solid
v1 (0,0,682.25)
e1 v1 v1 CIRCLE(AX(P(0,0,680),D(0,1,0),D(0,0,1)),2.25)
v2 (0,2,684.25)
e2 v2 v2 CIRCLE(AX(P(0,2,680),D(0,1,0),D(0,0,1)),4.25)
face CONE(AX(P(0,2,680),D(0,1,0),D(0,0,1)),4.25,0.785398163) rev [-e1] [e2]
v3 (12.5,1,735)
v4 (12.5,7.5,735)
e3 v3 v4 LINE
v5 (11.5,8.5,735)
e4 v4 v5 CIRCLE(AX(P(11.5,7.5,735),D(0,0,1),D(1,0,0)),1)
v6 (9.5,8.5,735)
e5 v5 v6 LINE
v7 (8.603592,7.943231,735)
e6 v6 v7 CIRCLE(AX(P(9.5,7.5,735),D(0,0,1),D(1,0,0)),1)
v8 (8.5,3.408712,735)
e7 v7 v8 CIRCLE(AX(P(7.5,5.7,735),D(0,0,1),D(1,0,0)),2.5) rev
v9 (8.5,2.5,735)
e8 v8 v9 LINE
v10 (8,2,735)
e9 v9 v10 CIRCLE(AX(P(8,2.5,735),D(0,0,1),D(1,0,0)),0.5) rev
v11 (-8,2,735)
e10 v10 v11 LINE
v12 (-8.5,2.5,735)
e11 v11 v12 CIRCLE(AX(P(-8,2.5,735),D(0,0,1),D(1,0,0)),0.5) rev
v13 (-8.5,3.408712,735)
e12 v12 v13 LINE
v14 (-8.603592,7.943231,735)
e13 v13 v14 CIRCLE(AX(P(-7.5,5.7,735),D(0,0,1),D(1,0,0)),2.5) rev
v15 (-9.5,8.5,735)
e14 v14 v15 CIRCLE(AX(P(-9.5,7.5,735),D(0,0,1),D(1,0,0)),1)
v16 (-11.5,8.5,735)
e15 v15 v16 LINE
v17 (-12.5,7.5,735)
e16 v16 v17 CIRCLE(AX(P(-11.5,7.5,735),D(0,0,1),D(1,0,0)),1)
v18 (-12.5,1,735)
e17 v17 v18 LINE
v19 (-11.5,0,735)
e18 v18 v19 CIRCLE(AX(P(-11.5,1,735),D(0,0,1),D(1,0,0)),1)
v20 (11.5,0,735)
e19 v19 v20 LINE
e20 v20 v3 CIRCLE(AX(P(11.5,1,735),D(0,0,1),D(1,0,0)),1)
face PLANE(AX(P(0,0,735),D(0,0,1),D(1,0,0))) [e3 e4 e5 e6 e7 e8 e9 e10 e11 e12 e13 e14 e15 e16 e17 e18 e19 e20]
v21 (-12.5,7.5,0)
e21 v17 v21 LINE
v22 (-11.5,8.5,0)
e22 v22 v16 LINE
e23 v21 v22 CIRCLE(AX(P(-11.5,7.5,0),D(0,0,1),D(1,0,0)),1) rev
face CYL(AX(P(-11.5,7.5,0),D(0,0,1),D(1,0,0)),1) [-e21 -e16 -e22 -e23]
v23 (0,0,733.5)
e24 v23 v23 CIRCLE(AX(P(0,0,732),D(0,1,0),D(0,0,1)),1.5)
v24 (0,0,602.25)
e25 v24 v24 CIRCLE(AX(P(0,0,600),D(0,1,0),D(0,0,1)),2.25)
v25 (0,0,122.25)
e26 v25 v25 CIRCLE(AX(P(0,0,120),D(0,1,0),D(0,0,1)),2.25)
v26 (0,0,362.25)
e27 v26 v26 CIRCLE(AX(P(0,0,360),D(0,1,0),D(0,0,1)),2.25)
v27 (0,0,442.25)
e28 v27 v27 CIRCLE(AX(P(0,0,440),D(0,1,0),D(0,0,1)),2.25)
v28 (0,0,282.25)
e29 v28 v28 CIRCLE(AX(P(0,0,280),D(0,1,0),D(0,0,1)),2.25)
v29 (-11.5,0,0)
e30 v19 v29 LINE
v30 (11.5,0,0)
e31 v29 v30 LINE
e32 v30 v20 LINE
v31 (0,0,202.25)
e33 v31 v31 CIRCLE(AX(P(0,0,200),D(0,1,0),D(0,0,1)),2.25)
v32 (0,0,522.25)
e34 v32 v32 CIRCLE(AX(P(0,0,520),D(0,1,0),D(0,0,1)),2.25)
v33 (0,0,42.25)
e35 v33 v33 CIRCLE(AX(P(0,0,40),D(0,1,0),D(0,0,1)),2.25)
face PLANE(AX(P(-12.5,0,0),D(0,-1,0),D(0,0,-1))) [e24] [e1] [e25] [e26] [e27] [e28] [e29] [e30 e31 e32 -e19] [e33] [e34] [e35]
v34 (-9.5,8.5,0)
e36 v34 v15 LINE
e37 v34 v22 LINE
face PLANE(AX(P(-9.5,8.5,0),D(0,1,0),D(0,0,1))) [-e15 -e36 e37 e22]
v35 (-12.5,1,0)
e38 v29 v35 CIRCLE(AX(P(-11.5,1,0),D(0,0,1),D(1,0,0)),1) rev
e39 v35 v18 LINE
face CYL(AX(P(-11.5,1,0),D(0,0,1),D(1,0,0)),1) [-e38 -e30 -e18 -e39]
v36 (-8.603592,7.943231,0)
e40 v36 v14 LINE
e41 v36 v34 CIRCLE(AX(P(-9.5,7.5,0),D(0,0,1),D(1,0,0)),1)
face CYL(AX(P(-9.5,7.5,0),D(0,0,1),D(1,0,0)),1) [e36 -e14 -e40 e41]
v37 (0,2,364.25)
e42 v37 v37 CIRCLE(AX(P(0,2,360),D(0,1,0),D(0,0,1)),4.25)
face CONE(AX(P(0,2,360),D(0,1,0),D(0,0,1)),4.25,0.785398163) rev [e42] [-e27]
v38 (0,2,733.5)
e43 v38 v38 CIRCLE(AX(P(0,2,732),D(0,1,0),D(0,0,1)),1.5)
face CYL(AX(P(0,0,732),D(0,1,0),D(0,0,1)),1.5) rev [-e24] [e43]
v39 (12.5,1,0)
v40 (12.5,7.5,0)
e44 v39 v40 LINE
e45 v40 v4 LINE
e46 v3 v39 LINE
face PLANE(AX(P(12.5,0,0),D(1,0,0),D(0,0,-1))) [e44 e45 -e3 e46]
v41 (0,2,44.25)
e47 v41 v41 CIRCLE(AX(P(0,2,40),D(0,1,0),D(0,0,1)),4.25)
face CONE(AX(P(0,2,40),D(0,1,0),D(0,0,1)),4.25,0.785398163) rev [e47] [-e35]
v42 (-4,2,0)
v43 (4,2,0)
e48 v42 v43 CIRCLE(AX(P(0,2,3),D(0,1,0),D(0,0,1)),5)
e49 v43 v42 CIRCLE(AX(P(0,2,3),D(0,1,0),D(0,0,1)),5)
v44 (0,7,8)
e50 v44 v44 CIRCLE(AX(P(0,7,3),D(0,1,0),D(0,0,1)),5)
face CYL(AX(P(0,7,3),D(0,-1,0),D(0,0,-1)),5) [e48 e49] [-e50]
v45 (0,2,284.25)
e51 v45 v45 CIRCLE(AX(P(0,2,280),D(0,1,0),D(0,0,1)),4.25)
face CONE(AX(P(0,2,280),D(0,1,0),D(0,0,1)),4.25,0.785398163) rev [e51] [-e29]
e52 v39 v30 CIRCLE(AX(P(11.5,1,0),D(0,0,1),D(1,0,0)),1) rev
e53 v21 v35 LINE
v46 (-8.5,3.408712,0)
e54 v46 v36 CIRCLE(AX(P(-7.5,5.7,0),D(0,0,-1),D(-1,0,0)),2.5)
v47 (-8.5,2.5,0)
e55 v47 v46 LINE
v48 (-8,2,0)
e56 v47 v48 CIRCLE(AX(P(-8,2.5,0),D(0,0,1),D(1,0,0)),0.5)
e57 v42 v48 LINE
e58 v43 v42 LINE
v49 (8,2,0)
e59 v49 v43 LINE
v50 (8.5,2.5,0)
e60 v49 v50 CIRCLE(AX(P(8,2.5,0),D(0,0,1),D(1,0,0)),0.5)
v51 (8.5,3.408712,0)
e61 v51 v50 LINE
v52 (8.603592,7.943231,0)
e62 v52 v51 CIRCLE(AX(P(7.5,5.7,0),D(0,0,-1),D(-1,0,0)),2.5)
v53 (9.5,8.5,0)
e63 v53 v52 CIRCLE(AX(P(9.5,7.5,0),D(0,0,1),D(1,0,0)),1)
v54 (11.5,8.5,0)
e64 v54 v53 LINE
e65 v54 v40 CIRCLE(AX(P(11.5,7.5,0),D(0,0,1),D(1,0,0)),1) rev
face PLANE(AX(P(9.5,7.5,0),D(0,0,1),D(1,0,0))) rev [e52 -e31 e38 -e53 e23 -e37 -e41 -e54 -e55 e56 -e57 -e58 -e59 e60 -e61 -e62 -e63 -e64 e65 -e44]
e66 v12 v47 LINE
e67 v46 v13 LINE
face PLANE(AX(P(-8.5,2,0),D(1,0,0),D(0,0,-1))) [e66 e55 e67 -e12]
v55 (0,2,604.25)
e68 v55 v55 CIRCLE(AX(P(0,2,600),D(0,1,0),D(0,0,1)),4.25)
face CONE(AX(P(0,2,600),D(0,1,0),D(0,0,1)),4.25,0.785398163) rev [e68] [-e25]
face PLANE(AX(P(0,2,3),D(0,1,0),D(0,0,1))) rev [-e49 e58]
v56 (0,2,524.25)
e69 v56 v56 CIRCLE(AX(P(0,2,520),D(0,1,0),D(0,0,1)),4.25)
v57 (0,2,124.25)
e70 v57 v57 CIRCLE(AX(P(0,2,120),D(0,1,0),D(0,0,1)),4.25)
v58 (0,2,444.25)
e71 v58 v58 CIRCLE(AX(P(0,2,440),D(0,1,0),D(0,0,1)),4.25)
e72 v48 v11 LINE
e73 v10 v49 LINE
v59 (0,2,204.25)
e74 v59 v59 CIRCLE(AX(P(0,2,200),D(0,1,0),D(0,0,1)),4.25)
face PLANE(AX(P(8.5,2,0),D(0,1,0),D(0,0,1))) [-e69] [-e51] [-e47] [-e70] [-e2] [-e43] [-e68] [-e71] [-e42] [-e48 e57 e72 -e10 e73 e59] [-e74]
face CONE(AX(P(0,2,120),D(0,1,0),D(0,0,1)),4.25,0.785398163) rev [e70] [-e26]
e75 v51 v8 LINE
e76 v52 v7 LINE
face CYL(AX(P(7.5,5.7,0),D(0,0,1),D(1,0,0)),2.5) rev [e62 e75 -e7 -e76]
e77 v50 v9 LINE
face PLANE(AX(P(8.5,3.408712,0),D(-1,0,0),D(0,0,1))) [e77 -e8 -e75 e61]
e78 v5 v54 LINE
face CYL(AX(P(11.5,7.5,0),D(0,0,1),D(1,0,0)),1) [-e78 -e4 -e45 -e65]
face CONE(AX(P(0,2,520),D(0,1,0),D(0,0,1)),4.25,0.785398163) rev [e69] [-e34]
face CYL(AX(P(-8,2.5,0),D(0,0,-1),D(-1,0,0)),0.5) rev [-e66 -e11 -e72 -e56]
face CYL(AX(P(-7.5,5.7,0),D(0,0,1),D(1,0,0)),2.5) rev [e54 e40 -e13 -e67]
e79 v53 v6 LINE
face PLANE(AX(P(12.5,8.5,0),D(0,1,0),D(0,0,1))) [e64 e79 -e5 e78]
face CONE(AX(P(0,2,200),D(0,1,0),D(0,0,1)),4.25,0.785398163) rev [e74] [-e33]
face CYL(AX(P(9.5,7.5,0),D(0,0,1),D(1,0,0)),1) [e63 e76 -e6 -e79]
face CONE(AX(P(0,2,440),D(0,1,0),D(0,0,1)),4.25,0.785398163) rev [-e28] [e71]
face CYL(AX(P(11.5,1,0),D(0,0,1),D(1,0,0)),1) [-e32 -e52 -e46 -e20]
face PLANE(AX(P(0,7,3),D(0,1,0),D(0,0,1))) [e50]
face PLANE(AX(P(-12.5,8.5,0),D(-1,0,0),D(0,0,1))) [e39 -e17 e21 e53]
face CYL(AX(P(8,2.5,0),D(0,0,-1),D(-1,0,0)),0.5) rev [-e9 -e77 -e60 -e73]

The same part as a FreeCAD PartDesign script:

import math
import FreeCAD as App
import Part
import Sketcher
from FreeCAD import Vector
Q = App.Units.Quantity


def edges_at(feature, points):
    """Names of the edges that pass closest to the given points."""
    edges = feature.Shape.Edges
    near = lambda p: min(range(len(edges)), key=lambda i: edges[i].distToShape(Part.Vertex(*p))[0])
    return sorted({f"Edge{near(p) + 1}" for p in points})

doc = App.newDocument("Part")
body = doc.addObject("PartDesign::Body", "Body")

# Sketch on XY plane
sketch1 = body.newObject("Sketcher::SketchObject", "Sketch")
sketch1.AttachmentSupport = (doc.getObject("XY_Plane"), [""])
sketch1.MapMode = "FlatFace"
sketch1.AttachmentOffset = App.Placement(Vector(0, 0, 720), App.Rotation())
sketch1.addGeometry([
    Part.LineSegment(Vector(8.5, 3.408712, 0), Vector(8.5, 2, 0)),  # 0
    Part.LineSegment(Vector(8.5, 2, 0), Vector(-8.5, 2, 0)),  # 1
    Part.LineSegment(Vector(-8.5, 2, 0), Vector(-8.5, 3.408712, 0)),  # 2
    Part.ArcOfCircle(Part.Circle(Vector(-7.5, 5.7, 0), Vector(0, 0, 1), 2.5), math.radians(116.195601), math.radians(246.421822)),  # 3
    Part.ArcOfCircle(Part.Circle(Vector(-9.5, 7.5, 0), Vector(0, 0, 1), 1), math.radians(26.310193), math.radians(90)),  # 4
    Part.LineSegment(Vector(-9.5, 8.5, 0), Vector(-12.5, 8.5, 0)),  # 5
    Part.LineSegment(Vector(-12.5, 8.5, 0), Vector(-12.5, 0, 0)),  # 6
    Part.LineSegment(Vector(-12.5, 0, 0), Vector(12.5, 0, 0)),  # 7
    Part.LineSegment(Vector(12.5, 0, 0), Vector(12.5, 8.5, 0)),  # 8
    Part.LineSegment(Vector(12.5, 8.5, 0), Vector(9.5, 8.5, 0)),  # 9
    Part.ArcOfCircle(Part.Circle(Vector(9.5, 7.5, 0), Vector(0, 0, 1), 1), math.radians(90), math.radians(153.689807)),  # 10
    Part.ArcOfCircle(Part.Circle(Vector(7.5, 5.7, 0), Vector(0, 0, 1), 2.5), math.radians(-66.421822), math.radians(63.804399)),  # 11
], False)
sketch1.addConstraint([
    Sketcher.Constraint("Coincident", 0, 2, 1, 1),
    Sketcher.Constraint("Coincident", 1, 2, 2, 1),
    Sketcher.Constraint("Coincident", 2, 2, 3, 2),
    Sketcher.Constraint("Coincident", 3, 1, 4, 1),
    Sketcher.Constraint("Tangent", 4, 2, 5, 1),
    Sketcher.Constraint("Coincident", 5, 2, 6, 1),
    Sketcher.Constraint("Coincident", 6, 2, 7, 1),
    Sketcher.Constraint("Coincident", 7, 2, 8, 1),
    Sketcher.Constraint("Coincident", 8, 2, 9, 1),
    Sketcher.Constraint("Tangent", 9, 2, 10, 1),
    Sketcher.Constraint("Coincident", 10, 2, 11, 2),
    Sketcher.Constraint("Coincident", 11, 1, 0, 1),
    Sketcher.Constraint("Vertical", 0),
    Sketcher.Constraint("Horizontal", 1),
    Sketcher.Constraint("Vertical", 2),
    Sketcher.Constraint("Horizontal", 5),
    Sketcher.Constraint("Vertical", 6),
    Sketcher.Constraint("Horizontal", 7),
    Sketcher.Constraint("Vertical", 8),
    Sketcher.Constraint("Horizontal", 9),
    Sketcher.Constraint("Equal", 4, 10),
    Sketcher.Constraint("Equal", 3, 11),
    Sketcher.Constraint("Symmetric", 6, 2, 7, 2, -1, 1),
    Sketcher.Constraint("Symmetric", 4, 3, 10, 3, -2),
    Sketcher.Constraint("Symmetric", 3, 3, 11, 3, -2),
    Sketcher.Constraint("Horizontal", 2, 2, 11, 1),
    Sketcher.Constraint("Radius", 4, Q("1 mm")),
    Sketcher.Constraint("Radius", 3, Q("2.5 mm")),
    Sketcher.Constraint("DistanceX", 1, 2, 1, 1, Q("17 mm")),
    Sketcher.Constraint("DistanceX", 5, 2, 5, 1, Q("3 mm")),
    Sketcher.Constraint("DistanceX", 7, 1, 7, 2, Q("25 mm")),
    Sketcher.Constraint("DistanceY", 6, 2, 6, 1, Q("8.5 mm")),
    Sketcher.Constraint("DistanceY", -1, 1, 0, 2, Q("2 mm")),
    Sketcher.Constraint("DistanceX", 4, 3, 3, 3, Q("2 mm")),
    Sketcher.Constraint("DistanceY", -1, 1, 3, 3, Q("5.7 mm")),
])
pad1 = body.newObject("PartDesign::Pad", "Pad")
pad1.Profile = sketch1
pad1.Length = 720
pad1.Reversed = True

# Sketch on XZ plane
sketch2 = body.newObject("Sketcher::SketchObject", "Sketch001")
sketch2.AttachmentSupport = (doc.getObject("XZ_Plane"), [""])
sketch2.MapMode = "FlatFace"
sketch2.AttachmentOffset = App.Placement(Vector(0, 0, -2), App.Rotation())
sketch2.addGeometry(Part.Circle(Vector(0, 3, 0), Vector(0, 0, 1), 5), False)
sketch2.addConstraint([
    Sketcher.Constraint("PointOnObject", 0, 3, -2),
    Sketcher.Constraint("Diameter", 0, Q("10 mm")),
    Sketcher.Constraint("DistanceY", -1, 1, 0, 3, Q("3 mm")),
])
pad2 = body.newObject("PartDesign::Pad", "Pad001")
pad2.Profile = sketch2
pad2.Length = 5
pad2.Reversed = True

# Sketch on YZ plane
sketch3 = body.newObject("Sketcher::SketchObject", "Sketch002")
sketch3.AttachmentSupport = (doc.getObject("YZ_Plane"), [""])
sketch3.MapMode = "FlatFace"
sketch3.addGeometry([
    Part.LineSegment(Vector(0, 40, 0), Vector(2, 40, 0)),
    Part.LineSegment(Vector(2, 40, 0), Vector(2, 44.25, 0)),
    Part.LineSegment(Vector(2, 44.25, 0), Vector(0, 42.25, 0)),
    Part.LineSegment(Vector(0, 42.25, 0), Vector(0, 40, 0)),
], False)
sketch3.addGeometry(Part.LineSegment(Vector(0, 40, 0), Vector(2, 40, 0)), True)  # axis
sketch3.addConstraint([
    Sketcher.Constraint("Coincident", 0, 2, 1, 1),
    Sketcher.Constraint("Coincident", 1, 2, 2, 1),
    Sketcher.Constraint("Coincident", 2, 2, 3, 1),
    Sketcher.Constraint("Coincident", 3, 2, 0, 1),
    Sketcher.Constraint("Horizontal", 0),
    Sketcher.Constraint("Vertical", 1),
    Sketcher.Constraint("Vertical", 3),
    Sketcher.Constraint("Horizontal", 4),
    Sketcher.Constraint("Coincident", 4, 1, 3, 2),
    Sketcher.Constraint("PointOnObject", 2, 2, -2),
    Sketcher.Constraint("Vertical", 1, 2, 4, 2),
    Sketcher.Constraint("DistanceX", 0, 1, 0, 2, Q("2 mm")),
    Sketcher.Constraint("Angle", 2, Q("-135 deg")),
    Sketcher.Constraint("DistanceY", -1, 1, 0, 2, Q("40 mm")),
    Sketcher.Constraint("DistanceY", 1, 1, 1, 2, Q("4.25 mm")),
])
groove = body.newObject("PartDesign::Groove", "Groove")
groove.Profile = sketch3
groove.ReferenceAxis = (sketch3, ["Axis0"])
groove.Angle = 360
doc.recompute()

linearpattern = body.newObject("PartDesign::LinearPattern", "LinearPattern")
linearpattern.Originals = [groove]
linearpattern.Direction = (doc.getObject("Z_Axis"), [""])
linearpattern.Mode = "offset"
linearpattern.Offset = 640
linearpattern.Occurrences = 2
body.Tip = linearpattern
doc.recompute()

linearpattern2 = body.newObject("PartDesign::LinearPattern", "LinearPattern001")
linearpattern2.Originals = [groove]
linearpattern2.Direction = (doc.getObject("Z_Axis"), [""])
linearpattern2.Mode = "offset"
linearpattern2.Offset = 560
linearpattern2.Occurrences = 2
body.Tip = linearpattern2
doc.recompute()

linearpattern3 = body.newObject("PartDesign::LinearPattern", "LinearPattern002")
linearpattern3.Originals = [groove]
linearpattern3.Direction = (doc.getObject("Z_Axis"), [""])
linearpattern3.Mode = "offset"
linearpattern3.Offset = 480
linearpattern3.Occurrences = 2
body.Tip = linearpattern3
doc.recompute()

linearpattern4 = body.newObject("PartDesign::LinearPattern", "LinearPattern003")
linearpattern4.Originals = [groove]
linearpattern4.Direction = (doc.getObject("Z_Axis"), [""])
linearpattern4.Mode = "offset"
linearpattern4.Offset = 400
linearpattern4.Occurrences = 2
body.Tip = linearpattern4
doc.recompute()

linearpattern5 = body.newObject("PartDesign::LinearPattern", "LinearPattern004")
linearpattern5.Originals = [groove]
linearpattern5.Direction = (doc.getObject("Z_Axis"), [""])
linearpattern5.Mode = "offset"
linearpattern5.Offset = 320
linearpattern5.Occurrences = 2
body.Tip = linearpattern5
doc.recompute()

linearpattern6 = body.newObject("PartDesign::LinearPattern", "LinearPattern005")
linearpattern6.Originals = [groove]
linearpattern6.Direction = (doc.getObject("Z_Axis"), [""])
linearpattern6.Mode = "offset"
linearpattern6.Offset = 240
linearpattern6.Occurrences = 2
body.Tip = linearpattern6
doc.recompute()

linearpattern7 = body.newObject("PartDesign::LinearPattern", "LinearPattern006")
linearpattern7.Originals = [groove]
linearpattern7.Direction = (doc.getObject("Z_Axis"), [""])
linearpattern7.Mode = "offset"
linearpattern7.Offset = 160
linearpattern7.Occurrences = 2
body.Tip = linearpattern7
doc.recompute()

linearpattern8 = body.newObject("PartDesign::LinearPattern", "LinearPattern007")
linearpattern8.Originals = [groove]
linearpattern8.Direction = (doc.getObject("Z_Axis"), [""])
linearpattern8.Mode = "offset"
linearpattern8.Offset = 80
linearpattern8.Occurrences = 2
body.Tip = linearpattern8
doc.recompute()

fillet = body.newObject("PartDesign::Fillet", "Fillet")
fillet.Base = (linearpattern8, edges_at(linearpattern8, [(-8.5, 2, 360), (8.5, 2, 360)]))
fillet.Radius = 0.5
doc.recompute()

fillet2 = body.newObject("PartDesign::Fillet", "Fillet001")
fillet2.Base = (fillet, edges_at(fillet, [
    (12.5, 8.5, 360),
    (12.5, 0, 360),
    (-12.5, 0, 360),
    (-12.5, 8.5, 360),
]))
fillet2.Radius = 1

# Sketch on XY plane
sketch4 = body.newObject("Sketcher::SketchObject", "Sketch003")
sketch4.AttachmentSupport = (doc.getObject("XY_Plane"), [""])
sketch4.MapMode = "FlatFace"
sketch4.AttachmentOffset = App.Placement(Vector(0, 0, 720), App.Rotation())
sketch4.addGeometry([
    Part.ArcOfCircle(Part.Circle(Vector(-11.5, 1, 0), Vector(0, 0, 1), 1), math.radians(-180), math.radians(-90)),  # 0
    Part.LineSegment(Vector(-11.5, 0, 0), Vector(11.5, 0, 0)),  # 1
    Part.ArcOfCircle(Part.Circle(Vector(11.5, 1, 0), Vector(0, 0, 1), 1), math.radians(-90), math.radians(0)),  # 2
    Part.LineSegment(Vector(12.5, 1, 0), Vector(12.5, 7.5, 0)),  # 3
    Part.ArcOfCircle(Part.Circle(Vector(11.5, 7.5, 0), Vector(0, 0, 1), 1), math.radians(0), math.radians(90)),  # 4
    Part.LineSegment(Vector(11.5, 8.5, 0), Vector(9.5, 8.5, 0)),  # 5
    Part.ArcOfCircle(Part.Circle(Vector(9.5, 7.5, 0), Vector(0, 0, 1), 1), math.radians(90), math.radians(153.689807)),  # 6
    Part.ArcOfCircle(Part.Circle(Vector(7.5, 5.7, 0), Vector(0, 0, 1), 2.5), math.radians(-66.421822), math.radians(63.804399)),  # 7
    Part.LineSegment(Vector(8.5, 3.408712, 0), Vector(8.5, 2.5, 0)),  # 8
    Part.ArcOfCircle(Part.Circle(Vector(8, 2.5, 0), Vector(0, 0, 1), 0.5), math.radians(-90), math.radians(0)),  # 9
    Part.LineSegment(Vector(8, 2, 0), Vector(-8, 2, 0)),  # 10
    Part.ArcOfCircle(Part.Circle(Vector(-8, 2.5, 0), Vector(0, 0, 1), 0.5), math.radians(180), math.radians(270)),  # 11
    Part.LineSegment(Vector(-8.5, 2.5, 0), Vector(-8.5, 3.408712, 0)),  # 12
    Part.ArcOfCircle(Part.Circle(Vector(-7.5, 5.7, 0), Vector(0, 0, 1), 2.5), math.radians(116.195601), math.radians(246.421822)),  # 13
    Part.ArcOfCircle(Part.Circle(Vector(-9.5, 7.5, 0), Vector(0, 0, 1), 1), math.radians(26.310193), math.radians(90)),  # 14
    Part.LineSegment(Vector(-9.5, 8.5, 0), Vector(-11.5, 8.5, 0)),  # 15
    Part.ArcOfCircle(Part.Circle(Vector(-11.5, 7.5, 0), Vector(0, 0, 1), 1), math.radians(90), math.radians(180)),  # 16
    Part.LineSegment(Vector(-12.5, 7.5, 0), Vector(-12.5, 1, 0)),  # 17
], False)
sketch4.addConstraint([
    Sketcher.Constraint("Tangent", 0, 2, 1, 1),
    Sketcher.Constraint("Tangent", 1, 2, 2, 1),
    Sketcher.Constraint("Tangent", 2, 2, 3, 1),
    Sketcher.Constraint("Tangent", 3, 2, 4, 1),
    Sketcher.Constraint("Tangent", 4, 2, 5, 1),
    Sketcher.Constraint("Tangent", 5, 2, 6, 1),
    Sketcher.Constraint("Coincident", 6, 2, 7, 2),
    Sketcher.Constraint("Coincident", 7, 1, 8, 1),
    Sketcher.Constraint("Tangent", 8, 2, 9, 2),
    Sketcher.Constraint("Tangent", 9, 1, 10, 1),
    Sketcher.Constraint("Tangent", 10, 2, 11, 2),
    Sketcher.Constraint("Tangent", 11, 1, 12, 1),
    Sketcher.Constraint("Coincident", 12, 2, 13, 2),
    Sketcher.Constraint("Coincident", 13, 1, 14, 1),
    Sketcher.Constraint("Tangent", 14, 2, 15, 1),
    Sketcher.Constraint("Tangent", 15, 2, 16, 1),
    Sketcher.Constraint("Tangent", 16, 2, 17, 1),
    Sketcher.Constraint("Tangent", 17, 2, 0, 1),
    Sketcher.Constraint("Horizontal", 1),
    Sketcher.Constraint("Vertical", 3),
    Sketcher.Constraint("Horizontal", 5),
    Sketcher.Constraint("Vertical", 8),
    Sketcher.Constraint("Horizontal", 10),
    Sketcher.Constraint("Vertical", 12),
    Sketcher.Constraint("Horizontal", 15),
    Sketcher.Constraint("Vertical", 17),
    Sketcher.Constraint("Equal", 0, 2),
    Sketcher.Constraint("Equal", 2, 4),
    Sketcher.Constraint("Equal", 4, 6),
    Sketcher.Constraint("Equal", 9, 11),
    Sketcher.Constraint("Equal", 7, 13),
    Sketcher.Constraint("Equal", 6, 14),
    Sketcher.Constraint("Equal", 14, 16),
    Sketcher.Constraint("Symmetric", 0, 2, 1, 2, -1, 1),
    Sketcher.Constraint("Symmetric", 7, 3, 13, 3, -2),
    Sketcher.Constraint("Symmetric", 6, 3, 14, 3, -2),
    Sketcher.Constraint("Horizontal", 7, 1, 12, 2),
    Sketcher.Constraint("Radius", 0, Q("1 mm")),
    Sketcher.Constraint("Radius", 7, Q("2.5 mm")),
    Sketcher.Constraint("Radius", 9, Q("0.5 mm")),
    Sketcher.Constraint("DistanceX", 1, 1, 1, 2, Q("23 mm")),
    Sketcher.Constraint("DistanceX", 5, 2, 5, 1, Q("2 mm")),
    Sketcher.Constraint("DistanceX", 10, 2, 10, 1, Q("16 mm")),
    Sketcher.Constraint("DistanceY", 3, 1, 3, 2, Q("6.5 mm")),
    Sketcher.Constraint("DistanceY", -1, 1, 9, 1, Q("2 mm")),
    Sketcher.Constraint("DistanceX", 7, 3, 6, 3, Q("2 mm")),
    Sketcher.Constraint("DistanceY", -1, 1, 7, 3, Q("5.7 mm")),
])
pad3 = body.newObject("PartDesign::Pad", "Pad002")
pad3.Profile = sketch4
pad3.Length = 15

# Sketch on XZ plane
sketch5 = body.newObject("Sketcher::SketchObject", "Sketch004")
sketch5.AttachmentSupport = (doc.getObject("XZ_Plane"), [""])
sketch5.MapMode = "FlatFace"
sketch5.AttachmentOffset = App.Placement(Vector(0, 0, -2), App.Rotation())
sketch5.addGeometry(Part.Circle(Vector(0, 732, 0), Vector(0, 0, 1), 1.5), False)
sketch5.addConstraint([
    Sketcher.Constraint("PointOnObject", 0, 3, -2),
    Sketcher.Constraint("Diameter", 0, Q("3 mm")),
    Sketcher.Constraint("DistanceY", -1, 1, 0, 3, Q("732 mm")),
])
pocket1 = body.newObject("PartDesign::Pocket", "Pocket")
pocket1.Profile = sketch5
pocket1.Type = "ThroughAll"
pocket1.Reversed = True

doc.recompute()
